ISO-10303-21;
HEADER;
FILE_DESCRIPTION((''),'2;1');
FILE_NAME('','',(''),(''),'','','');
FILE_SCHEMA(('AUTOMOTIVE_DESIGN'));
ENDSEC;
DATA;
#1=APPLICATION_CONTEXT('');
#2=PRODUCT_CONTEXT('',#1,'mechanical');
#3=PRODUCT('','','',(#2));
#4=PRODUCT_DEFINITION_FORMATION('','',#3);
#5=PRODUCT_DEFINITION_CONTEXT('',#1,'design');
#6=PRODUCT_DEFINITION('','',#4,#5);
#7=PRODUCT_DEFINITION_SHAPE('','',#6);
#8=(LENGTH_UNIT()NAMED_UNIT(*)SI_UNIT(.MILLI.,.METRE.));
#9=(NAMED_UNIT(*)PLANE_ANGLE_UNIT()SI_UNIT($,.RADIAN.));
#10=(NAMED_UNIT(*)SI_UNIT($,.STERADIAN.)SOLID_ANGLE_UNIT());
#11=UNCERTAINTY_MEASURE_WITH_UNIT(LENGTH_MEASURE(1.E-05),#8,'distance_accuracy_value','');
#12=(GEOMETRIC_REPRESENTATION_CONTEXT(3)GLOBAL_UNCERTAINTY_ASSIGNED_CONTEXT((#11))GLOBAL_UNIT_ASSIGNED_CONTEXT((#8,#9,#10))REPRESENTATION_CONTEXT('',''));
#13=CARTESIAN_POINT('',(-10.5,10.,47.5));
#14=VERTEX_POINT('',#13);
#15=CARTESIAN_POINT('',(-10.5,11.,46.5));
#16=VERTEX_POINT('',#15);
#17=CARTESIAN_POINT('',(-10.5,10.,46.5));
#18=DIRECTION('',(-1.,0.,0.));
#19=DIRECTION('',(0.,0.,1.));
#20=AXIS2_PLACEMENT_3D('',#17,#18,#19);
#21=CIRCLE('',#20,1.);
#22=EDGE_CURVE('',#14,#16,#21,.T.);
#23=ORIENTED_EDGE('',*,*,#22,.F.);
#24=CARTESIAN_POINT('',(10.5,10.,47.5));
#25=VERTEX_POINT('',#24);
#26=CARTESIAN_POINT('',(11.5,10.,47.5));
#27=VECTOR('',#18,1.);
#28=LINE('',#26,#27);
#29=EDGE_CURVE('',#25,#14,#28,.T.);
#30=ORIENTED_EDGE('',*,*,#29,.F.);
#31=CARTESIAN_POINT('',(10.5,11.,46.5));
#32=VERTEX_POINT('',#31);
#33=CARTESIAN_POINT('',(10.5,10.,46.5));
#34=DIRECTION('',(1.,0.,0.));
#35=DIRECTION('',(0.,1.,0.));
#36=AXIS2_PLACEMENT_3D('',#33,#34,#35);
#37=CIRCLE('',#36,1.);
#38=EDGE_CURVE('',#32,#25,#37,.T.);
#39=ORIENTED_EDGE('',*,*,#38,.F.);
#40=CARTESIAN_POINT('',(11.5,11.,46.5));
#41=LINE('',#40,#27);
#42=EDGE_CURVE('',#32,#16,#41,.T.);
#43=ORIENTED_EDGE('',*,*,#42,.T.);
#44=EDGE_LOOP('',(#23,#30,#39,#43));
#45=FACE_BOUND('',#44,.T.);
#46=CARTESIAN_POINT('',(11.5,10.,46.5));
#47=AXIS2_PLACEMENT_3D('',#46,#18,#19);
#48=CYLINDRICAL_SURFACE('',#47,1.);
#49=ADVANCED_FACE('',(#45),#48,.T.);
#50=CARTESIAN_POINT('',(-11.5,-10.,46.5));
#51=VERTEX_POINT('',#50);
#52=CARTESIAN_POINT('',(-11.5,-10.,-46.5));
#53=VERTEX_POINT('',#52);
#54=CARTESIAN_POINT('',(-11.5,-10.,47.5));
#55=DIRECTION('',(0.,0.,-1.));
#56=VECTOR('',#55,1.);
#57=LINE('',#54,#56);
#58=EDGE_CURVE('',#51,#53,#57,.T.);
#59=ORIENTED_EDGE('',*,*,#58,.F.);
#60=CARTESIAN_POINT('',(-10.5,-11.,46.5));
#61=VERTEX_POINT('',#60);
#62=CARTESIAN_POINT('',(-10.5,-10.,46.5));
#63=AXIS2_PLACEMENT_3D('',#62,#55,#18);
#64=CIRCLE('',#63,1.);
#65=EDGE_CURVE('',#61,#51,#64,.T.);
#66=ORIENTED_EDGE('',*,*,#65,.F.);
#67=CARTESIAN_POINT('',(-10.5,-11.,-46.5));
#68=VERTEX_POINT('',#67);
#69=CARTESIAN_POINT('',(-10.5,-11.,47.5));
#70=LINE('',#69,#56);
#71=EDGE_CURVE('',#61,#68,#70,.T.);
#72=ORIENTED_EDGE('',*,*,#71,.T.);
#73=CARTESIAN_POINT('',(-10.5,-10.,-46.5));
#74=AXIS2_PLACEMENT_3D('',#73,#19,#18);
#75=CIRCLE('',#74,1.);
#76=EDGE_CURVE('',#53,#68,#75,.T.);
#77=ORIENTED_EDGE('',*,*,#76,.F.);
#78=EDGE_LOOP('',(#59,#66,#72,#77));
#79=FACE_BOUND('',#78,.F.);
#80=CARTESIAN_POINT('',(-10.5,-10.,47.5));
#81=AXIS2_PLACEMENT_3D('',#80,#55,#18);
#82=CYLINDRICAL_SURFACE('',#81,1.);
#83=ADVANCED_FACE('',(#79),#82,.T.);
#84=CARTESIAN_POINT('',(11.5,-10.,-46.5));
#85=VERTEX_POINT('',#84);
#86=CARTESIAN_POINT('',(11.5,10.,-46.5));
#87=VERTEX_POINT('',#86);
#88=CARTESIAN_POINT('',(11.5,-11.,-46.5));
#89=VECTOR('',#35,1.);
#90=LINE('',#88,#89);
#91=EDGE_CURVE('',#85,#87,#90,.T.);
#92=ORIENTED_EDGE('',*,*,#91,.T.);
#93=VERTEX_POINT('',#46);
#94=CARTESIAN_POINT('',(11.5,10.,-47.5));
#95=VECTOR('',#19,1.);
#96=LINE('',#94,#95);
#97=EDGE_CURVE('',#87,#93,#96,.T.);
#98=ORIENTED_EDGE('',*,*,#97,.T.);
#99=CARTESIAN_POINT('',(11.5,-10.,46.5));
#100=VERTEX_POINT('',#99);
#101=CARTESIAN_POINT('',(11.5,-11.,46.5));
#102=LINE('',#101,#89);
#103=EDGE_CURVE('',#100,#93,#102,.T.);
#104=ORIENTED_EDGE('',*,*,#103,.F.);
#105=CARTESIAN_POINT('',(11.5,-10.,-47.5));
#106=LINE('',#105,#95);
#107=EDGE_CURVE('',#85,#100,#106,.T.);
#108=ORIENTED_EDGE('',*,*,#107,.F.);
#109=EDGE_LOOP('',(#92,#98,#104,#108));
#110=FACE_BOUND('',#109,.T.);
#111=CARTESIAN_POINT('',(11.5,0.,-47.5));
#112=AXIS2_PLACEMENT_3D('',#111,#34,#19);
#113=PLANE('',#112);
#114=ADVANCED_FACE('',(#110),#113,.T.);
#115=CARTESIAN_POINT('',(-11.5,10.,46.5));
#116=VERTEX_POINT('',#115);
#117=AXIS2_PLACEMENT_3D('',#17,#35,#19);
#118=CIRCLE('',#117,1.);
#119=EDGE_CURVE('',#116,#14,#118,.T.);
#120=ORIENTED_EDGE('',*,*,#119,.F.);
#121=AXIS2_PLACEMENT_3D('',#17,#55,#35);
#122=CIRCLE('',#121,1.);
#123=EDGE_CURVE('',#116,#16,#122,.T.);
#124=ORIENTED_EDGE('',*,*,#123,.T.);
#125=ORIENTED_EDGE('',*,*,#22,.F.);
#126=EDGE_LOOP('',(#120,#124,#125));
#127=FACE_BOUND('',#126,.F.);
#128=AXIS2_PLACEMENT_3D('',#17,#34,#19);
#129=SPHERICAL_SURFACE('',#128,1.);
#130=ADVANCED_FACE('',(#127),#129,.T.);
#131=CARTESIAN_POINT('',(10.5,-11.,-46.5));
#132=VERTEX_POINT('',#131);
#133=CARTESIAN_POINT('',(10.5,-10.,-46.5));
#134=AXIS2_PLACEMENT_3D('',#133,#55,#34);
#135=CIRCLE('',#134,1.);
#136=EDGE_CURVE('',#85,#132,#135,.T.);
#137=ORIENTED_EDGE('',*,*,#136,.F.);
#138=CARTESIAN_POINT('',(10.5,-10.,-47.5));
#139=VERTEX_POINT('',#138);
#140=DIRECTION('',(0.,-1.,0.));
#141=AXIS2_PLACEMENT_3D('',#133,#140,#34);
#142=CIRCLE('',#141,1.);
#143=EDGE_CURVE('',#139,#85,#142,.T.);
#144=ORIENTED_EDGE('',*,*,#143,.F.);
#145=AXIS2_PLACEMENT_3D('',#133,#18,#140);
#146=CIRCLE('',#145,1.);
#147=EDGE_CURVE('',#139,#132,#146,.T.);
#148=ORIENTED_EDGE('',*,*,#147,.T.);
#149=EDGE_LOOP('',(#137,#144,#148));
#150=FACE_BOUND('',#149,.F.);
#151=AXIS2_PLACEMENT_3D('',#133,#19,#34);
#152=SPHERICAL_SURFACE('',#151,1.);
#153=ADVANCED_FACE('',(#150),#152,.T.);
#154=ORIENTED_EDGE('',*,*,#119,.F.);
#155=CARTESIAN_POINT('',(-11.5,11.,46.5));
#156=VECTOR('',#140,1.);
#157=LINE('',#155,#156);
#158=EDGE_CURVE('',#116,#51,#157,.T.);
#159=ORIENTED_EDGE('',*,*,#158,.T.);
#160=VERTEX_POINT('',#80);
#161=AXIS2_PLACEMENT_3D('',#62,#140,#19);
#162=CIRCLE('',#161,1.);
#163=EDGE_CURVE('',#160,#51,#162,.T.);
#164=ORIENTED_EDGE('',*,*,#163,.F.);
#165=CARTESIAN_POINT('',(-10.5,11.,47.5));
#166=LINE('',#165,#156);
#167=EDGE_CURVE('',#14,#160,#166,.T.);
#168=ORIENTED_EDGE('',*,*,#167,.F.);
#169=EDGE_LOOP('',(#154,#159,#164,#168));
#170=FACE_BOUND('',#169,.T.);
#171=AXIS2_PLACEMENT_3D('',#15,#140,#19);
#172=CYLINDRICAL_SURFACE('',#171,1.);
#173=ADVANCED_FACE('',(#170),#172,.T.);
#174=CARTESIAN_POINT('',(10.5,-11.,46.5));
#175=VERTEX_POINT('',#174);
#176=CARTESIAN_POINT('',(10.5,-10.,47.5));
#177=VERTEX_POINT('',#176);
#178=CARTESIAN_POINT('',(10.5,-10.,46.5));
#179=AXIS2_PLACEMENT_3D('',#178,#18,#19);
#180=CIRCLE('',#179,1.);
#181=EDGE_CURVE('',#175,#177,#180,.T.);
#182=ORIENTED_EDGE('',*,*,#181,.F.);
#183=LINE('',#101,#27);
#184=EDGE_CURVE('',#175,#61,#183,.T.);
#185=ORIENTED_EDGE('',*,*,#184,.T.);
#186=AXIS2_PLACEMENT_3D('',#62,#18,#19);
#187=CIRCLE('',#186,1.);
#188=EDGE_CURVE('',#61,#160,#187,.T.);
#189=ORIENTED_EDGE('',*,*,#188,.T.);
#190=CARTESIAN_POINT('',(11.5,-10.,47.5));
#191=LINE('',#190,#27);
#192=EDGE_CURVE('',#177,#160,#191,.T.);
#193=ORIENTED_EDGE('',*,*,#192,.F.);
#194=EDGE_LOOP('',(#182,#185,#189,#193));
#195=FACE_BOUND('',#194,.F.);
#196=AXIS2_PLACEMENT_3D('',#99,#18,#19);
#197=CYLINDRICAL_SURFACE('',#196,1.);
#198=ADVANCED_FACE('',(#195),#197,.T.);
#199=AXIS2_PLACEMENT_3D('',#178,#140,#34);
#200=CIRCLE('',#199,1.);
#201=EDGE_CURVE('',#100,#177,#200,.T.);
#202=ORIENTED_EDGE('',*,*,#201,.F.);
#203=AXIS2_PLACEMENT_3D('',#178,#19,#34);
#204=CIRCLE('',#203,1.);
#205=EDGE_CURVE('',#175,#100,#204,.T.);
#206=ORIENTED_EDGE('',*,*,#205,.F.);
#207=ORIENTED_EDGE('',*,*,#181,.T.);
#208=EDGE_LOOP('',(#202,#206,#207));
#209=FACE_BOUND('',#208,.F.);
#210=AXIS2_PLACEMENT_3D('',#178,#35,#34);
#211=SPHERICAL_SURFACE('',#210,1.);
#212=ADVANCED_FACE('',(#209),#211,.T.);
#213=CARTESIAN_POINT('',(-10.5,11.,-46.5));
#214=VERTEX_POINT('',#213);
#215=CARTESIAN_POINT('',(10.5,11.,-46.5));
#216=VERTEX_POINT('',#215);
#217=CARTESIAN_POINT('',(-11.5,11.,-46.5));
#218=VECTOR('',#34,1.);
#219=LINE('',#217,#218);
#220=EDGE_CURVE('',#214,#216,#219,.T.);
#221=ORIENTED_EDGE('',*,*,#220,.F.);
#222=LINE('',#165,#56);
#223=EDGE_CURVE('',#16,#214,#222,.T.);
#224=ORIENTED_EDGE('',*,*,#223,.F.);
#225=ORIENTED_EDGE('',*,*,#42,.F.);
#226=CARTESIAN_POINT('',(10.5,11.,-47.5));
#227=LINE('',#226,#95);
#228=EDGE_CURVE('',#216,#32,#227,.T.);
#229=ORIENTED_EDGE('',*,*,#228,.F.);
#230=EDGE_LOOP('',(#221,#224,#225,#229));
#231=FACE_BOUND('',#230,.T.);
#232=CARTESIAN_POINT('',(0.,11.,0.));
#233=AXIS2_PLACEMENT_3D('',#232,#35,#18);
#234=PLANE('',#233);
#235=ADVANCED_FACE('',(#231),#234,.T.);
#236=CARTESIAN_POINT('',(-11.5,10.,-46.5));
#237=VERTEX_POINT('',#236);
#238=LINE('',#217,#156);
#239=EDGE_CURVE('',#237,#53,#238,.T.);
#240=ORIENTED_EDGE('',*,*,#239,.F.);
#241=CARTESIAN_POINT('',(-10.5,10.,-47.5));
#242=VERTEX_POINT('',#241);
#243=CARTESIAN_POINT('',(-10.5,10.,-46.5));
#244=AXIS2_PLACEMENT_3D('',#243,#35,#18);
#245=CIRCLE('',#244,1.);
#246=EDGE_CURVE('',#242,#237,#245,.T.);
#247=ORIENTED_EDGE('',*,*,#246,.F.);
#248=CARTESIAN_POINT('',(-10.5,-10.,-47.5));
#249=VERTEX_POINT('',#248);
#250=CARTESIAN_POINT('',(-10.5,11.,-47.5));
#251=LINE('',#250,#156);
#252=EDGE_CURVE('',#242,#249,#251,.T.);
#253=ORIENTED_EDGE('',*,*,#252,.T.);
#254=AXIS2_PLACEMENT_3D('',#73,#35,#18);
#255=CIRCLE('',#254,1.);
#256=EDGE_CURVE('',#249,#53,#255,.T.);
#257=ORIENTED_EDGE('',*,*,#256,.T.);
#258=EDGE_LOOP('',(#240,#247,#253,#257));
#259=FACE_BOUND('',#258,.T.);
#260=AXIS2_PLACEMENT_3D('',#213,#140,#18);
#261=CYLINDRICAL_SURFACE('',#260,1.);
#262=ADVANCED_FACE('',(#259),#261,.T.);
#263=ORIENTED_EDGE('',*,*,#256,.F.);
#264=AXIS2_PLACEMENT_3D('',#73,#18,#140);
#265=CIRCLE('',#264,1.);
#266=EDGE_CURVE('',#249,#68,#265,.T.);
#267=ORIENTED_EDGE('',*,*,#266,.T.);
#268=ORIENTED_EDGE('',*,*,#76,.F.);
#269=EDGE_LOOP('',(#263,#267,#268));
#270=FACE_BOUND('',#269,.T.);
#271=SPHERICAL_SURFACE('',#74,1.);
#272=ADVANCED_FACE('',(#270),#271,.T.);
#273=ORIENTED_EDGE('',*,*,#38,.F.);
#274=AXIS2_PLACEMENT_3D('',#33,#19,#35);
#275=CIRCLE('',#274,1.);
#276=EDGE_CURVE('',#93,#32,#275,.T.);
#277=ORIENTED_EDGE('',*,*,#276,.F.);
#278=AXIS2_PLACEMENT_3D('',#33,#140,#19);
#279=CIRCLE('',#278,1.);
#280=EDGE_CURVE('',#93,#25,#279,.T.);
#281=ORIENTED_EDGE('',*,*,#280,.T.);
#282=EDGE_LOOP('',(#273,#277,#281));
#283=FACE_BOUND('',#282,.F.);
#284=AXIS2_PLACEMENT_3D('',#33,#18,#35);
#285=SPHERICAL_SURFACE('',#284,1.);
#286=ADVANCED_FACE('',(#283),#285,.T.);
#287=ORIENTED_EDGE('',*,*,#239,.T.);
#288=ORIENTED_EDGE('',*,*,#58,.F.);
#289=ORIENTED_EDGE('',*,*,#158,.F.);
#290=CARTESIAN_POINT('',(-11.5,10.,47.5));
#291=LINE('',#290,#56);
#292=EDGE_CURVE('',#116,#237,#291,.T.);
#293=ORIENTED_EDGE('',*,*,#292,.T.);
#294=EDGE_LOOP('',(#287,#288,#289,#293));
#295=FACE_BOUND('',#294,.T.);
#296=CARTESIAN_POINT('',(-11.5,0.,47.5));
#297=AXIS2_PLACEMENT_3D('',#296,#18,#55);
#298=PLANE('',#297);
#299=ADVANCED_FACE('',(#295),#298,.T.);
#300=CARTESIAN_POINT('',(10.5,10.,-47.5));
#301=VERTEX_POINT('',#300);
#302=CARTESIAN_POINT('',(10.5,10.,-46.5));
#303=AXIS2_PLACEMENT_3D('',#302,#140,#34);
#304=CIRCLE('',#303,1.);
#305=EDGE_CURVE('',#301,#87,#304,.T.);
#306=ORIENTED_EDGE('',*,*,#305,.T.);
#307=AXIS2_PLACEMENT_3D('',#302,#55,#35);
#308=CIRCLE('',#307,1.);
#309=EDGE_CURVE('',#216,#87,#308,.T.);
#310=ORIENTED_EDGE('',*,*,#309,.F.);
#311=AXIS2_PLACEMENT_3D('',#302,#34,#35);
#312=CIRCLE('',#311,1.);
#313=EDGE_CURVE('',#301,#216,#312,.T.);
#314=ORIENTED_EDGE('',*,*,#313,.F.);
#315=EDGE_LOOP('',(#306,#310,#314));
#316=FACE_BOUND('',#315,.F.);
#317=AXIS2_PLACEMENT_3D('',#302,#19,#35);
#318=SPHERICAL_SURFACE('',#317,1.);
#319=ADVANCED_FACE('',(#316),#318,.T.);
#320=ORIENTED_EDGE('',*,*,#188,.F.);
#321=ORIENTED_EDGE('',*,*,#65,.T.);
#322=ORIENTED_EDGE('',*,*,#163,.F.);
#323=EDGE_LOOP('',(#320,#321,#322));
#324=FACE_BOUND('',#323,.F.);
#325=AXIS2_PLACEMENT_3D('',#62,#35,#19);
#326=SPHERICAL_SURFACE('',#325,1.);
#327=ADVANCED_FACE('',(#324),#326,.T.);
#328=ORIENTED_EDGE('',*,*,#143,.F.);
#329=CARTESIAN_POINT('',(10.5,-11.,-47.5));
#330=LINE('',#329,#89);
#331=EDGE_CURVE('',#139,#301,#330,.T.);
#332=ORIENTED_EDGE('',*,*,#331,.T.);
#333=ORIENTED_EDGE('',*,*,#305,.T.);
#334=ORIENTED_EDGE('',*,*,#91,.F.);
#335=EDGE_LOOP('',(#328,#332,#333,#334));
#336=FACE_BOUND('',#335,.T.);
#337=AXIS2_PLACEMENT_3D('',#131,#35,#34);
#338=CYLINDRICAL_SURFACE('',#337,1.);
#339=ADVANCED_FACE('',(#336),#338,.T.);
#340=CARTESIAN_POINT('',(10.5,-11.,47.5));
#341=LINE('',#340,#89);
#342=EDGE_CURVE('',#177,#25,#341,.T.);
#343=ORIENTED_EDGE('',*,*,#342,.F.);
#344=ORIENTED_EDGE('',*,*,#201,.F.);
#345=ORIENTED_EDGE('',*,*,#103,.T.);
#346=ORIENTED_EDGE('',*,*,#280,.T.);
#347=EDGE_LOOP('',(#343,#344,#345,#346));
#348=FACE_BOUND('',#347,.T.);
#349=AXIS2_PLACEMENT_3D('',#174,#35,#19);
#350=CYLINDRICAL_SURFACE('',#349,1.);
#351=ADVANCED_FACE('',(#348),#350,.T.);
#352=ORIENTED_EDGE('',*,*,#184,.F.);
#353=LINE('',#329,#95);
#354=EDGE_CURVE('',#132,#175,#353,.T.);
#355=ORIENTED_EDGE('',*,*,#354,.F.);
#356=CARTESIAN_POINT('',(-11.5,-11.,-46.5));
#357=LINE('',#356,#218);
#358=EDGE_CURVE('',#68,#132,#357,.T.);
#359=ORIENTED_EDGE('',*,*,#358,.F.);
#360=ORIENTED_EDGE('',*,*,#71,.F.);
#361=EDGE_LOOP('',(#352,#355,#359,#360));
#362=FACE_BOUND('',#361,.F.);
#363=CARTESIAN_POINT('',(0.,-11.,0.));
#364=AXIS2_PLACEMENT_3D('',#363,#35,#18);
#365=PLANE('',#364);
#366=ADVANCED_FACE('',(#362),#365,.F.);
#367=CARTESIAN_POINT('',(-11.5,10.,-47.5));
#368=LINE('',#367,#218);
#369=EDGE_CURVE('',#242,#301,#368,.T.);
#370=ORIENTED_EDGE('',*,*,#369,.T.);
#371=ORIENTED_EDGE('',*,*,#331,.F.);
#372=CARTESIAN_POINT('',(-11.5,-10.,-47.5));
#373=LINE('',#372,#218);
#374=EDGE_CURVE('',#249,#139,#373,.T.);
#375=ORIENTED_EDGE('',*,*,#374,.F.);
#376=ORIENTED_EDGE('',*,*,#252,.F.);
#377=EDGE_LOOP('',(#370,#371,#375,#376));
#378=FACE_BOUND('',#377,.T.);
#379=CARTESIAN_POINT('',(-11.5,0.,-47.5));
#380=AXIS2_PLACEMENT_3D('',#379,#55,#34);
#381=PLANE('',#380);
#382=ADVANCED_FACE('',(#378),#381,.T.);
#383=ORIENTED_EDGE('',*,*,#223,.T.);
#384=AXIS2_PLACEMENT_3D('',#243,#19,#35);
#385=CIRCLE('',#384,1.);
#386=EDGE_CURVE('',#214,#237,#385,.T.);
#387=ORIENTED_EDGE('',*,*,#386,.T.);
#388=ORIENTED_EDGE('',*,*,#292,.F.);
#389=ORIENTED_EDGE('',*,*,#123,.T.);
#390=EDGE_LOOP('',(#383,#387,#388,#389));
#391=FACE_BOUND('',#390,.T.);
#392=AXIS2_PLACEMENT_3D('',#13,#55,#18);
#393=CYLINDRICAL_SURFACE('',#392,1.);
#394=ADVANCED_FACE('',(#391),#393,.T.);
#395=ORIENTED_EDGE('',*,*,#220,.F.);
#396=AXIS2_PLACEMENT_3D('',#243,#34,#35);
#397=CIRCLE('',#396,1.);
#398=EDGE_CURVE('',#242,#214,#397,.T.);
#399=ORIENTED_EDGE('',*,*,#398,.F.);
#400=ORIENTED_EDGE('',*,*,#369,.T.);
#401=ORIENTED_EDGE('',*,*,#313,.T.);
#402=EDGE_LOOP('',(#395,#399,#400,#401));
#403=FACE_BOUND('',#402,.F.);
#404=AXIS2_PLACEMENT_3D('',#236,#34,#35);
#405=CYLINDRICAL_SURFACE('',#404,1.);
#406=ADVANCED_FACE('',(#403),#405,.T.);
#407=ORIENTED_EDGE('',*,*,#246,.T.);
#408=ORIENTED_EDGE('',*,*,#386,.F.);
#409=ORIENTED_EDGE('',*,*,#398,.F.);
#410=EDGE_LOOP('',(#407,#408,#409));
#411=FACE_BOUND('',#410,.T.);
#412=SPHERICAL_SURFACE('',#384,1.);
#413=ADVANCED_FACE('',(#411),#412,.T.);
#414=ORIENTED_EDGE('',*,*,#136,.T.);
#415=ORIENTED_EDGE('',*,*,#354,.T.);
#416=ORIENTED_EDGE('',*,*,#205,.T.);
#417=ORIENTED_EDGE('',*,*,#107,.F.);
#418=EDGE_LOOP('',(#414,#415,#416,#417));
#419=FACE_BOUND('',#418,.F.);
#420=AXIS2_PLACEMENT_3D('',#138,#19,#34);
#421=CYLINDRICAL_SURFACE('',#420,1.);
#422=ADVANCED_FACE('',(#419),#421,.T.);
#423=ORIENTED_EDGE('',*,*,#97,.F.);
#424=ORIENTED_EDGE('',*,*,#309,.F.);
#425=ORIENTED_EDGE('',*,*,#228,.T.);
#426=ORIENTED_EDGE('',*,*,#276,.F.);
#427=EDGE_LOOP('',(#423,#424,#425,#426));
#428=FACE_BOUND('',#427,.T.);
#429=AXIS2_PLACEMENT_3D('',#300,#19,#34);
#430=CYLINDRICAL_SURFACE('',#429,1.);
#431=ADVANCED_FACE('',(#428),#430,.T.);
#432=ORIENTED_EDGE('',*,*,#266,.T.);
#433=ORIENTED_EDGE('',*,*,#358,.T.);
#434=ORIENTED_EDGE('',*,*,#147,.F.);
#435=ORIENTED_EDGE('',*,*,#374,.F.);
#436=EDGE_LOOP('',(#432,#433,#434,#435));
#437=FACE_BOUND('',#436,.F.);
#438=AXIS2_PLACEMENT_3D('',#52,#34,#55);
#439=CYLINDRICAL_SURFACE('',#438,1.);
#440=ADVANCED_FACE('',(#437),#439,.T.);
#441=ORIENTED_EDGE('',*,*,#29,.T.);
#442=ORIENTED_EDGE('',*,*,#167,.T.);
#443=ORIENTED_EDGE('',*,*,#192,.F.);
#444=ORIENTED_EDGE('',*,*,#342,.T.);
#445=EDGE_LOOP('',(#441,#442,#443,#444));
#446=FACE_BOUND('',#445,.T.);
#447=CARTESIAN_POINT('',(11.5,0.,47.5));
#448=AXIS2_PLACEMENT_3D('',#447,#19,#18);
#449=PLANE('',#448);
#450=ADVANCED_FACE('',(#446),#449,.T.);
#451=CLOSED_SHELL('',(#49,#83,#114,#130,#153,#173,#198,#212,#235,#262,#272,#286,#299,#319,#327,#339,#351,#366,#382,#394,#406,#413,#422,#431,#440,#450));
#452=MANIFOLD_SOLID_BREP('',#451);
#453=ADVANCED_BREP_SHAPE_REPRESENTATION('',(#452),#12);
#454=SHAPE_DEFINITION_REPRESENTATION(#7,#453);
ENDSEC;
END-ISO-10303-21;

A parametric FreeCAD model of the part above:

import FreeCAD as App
import Part
import Sketcher


def add_polygon(sketch, points):
    """Adds a closed chain of lines whose ends are joined by coincident constraints."""
    first, n = sketch.GeometryCount, len(points)
    for a, b in zip(points, points[1:] + points[:1]):
        sketch.addGeometry(Part.LineSegment(App.Vector(*a, 0), App.Vector(*b, 0)), False)
    for i in range(n):
        sketch.addConstraint(Sketcher.Constraint("Coincident", first + i, 2, first + (i + 1) % n, 1))

doc = App.newDocument("Part")
params = doc.addObject("Spreadsheet::Sheet", "Params")
for row, (alias, value) in enumerate([
    ("sketch1_width", "23 mm"),
    ("sketch1_height", "95 mm"),
    ("pad1_length", "22 mm"),
    ("fillet_radius", "1 mm"),
], start=1):
    params.set(f"A{row}", alias)
    params.set(f"B{row}", "=" + value)
    params.setAlias(f"B{row}", alias)

body = doc.addObject("PartDesign::Body", "Body")

sketch1 = doc.addObject("Sketcher::SketchObject", "Sketch")
body.addObject(sketch1)
sketch1.AttachmentSupport = (doc.XZ_Plane, [""])
sketch1.MapMode = "FlatFace"
add_polygon(sketch1, [(-11.5, 47.5), (11.5, 47.5), (11.5, -47.5), (-11.5, -47.5)])
sketch1.addConstraint(Sketcher.Constraint("Horizontal", 0))
sketch1.addConstraint(Sketcher.Constraint("Vertical", 1))
sketch1.addConstraint(Sketcher.Constraint("Horizontal", 2))
sketch1.addConstraint(Sketcher.Constraint("Vertical", 3))
sketch1.addConstraint(Sketcher.Constraint("Symmetric", 0, 2, 2, 2, -1, 1))
sketch1.addConstraint(Sketcher.Constraint("DistanceX", 0, 1, 0, 2, 23.0))
sketch1.addConstraint(Sketcher.Constraint("DistanceY", 1, 2, 1, 1, 95.0))
sketch1.setExpression("Constraints[9]", "Params.sketch1_width")
sketch1.setExpression("Constraints[10]", "Params.sketch1_height")
pad1 = doc.addObject("PartDesign::Pad", "Pad")
body.addObject(pad1)
pad1.Profile = sketch1
pad1.setExpression("Length", "Params.pad1_length")
pad1.Midplane = True
doc.recompute()

fillet = doc.addObject("PartDesign::Fillet", "Fillet")
body.addObject(fillet)
fillet.Base = (pad1, ["Edge1"])
fillet.UseAllEdges = True
fillet.setExpression("Radius", "Params.fillet_radius")

doc.recompute()
